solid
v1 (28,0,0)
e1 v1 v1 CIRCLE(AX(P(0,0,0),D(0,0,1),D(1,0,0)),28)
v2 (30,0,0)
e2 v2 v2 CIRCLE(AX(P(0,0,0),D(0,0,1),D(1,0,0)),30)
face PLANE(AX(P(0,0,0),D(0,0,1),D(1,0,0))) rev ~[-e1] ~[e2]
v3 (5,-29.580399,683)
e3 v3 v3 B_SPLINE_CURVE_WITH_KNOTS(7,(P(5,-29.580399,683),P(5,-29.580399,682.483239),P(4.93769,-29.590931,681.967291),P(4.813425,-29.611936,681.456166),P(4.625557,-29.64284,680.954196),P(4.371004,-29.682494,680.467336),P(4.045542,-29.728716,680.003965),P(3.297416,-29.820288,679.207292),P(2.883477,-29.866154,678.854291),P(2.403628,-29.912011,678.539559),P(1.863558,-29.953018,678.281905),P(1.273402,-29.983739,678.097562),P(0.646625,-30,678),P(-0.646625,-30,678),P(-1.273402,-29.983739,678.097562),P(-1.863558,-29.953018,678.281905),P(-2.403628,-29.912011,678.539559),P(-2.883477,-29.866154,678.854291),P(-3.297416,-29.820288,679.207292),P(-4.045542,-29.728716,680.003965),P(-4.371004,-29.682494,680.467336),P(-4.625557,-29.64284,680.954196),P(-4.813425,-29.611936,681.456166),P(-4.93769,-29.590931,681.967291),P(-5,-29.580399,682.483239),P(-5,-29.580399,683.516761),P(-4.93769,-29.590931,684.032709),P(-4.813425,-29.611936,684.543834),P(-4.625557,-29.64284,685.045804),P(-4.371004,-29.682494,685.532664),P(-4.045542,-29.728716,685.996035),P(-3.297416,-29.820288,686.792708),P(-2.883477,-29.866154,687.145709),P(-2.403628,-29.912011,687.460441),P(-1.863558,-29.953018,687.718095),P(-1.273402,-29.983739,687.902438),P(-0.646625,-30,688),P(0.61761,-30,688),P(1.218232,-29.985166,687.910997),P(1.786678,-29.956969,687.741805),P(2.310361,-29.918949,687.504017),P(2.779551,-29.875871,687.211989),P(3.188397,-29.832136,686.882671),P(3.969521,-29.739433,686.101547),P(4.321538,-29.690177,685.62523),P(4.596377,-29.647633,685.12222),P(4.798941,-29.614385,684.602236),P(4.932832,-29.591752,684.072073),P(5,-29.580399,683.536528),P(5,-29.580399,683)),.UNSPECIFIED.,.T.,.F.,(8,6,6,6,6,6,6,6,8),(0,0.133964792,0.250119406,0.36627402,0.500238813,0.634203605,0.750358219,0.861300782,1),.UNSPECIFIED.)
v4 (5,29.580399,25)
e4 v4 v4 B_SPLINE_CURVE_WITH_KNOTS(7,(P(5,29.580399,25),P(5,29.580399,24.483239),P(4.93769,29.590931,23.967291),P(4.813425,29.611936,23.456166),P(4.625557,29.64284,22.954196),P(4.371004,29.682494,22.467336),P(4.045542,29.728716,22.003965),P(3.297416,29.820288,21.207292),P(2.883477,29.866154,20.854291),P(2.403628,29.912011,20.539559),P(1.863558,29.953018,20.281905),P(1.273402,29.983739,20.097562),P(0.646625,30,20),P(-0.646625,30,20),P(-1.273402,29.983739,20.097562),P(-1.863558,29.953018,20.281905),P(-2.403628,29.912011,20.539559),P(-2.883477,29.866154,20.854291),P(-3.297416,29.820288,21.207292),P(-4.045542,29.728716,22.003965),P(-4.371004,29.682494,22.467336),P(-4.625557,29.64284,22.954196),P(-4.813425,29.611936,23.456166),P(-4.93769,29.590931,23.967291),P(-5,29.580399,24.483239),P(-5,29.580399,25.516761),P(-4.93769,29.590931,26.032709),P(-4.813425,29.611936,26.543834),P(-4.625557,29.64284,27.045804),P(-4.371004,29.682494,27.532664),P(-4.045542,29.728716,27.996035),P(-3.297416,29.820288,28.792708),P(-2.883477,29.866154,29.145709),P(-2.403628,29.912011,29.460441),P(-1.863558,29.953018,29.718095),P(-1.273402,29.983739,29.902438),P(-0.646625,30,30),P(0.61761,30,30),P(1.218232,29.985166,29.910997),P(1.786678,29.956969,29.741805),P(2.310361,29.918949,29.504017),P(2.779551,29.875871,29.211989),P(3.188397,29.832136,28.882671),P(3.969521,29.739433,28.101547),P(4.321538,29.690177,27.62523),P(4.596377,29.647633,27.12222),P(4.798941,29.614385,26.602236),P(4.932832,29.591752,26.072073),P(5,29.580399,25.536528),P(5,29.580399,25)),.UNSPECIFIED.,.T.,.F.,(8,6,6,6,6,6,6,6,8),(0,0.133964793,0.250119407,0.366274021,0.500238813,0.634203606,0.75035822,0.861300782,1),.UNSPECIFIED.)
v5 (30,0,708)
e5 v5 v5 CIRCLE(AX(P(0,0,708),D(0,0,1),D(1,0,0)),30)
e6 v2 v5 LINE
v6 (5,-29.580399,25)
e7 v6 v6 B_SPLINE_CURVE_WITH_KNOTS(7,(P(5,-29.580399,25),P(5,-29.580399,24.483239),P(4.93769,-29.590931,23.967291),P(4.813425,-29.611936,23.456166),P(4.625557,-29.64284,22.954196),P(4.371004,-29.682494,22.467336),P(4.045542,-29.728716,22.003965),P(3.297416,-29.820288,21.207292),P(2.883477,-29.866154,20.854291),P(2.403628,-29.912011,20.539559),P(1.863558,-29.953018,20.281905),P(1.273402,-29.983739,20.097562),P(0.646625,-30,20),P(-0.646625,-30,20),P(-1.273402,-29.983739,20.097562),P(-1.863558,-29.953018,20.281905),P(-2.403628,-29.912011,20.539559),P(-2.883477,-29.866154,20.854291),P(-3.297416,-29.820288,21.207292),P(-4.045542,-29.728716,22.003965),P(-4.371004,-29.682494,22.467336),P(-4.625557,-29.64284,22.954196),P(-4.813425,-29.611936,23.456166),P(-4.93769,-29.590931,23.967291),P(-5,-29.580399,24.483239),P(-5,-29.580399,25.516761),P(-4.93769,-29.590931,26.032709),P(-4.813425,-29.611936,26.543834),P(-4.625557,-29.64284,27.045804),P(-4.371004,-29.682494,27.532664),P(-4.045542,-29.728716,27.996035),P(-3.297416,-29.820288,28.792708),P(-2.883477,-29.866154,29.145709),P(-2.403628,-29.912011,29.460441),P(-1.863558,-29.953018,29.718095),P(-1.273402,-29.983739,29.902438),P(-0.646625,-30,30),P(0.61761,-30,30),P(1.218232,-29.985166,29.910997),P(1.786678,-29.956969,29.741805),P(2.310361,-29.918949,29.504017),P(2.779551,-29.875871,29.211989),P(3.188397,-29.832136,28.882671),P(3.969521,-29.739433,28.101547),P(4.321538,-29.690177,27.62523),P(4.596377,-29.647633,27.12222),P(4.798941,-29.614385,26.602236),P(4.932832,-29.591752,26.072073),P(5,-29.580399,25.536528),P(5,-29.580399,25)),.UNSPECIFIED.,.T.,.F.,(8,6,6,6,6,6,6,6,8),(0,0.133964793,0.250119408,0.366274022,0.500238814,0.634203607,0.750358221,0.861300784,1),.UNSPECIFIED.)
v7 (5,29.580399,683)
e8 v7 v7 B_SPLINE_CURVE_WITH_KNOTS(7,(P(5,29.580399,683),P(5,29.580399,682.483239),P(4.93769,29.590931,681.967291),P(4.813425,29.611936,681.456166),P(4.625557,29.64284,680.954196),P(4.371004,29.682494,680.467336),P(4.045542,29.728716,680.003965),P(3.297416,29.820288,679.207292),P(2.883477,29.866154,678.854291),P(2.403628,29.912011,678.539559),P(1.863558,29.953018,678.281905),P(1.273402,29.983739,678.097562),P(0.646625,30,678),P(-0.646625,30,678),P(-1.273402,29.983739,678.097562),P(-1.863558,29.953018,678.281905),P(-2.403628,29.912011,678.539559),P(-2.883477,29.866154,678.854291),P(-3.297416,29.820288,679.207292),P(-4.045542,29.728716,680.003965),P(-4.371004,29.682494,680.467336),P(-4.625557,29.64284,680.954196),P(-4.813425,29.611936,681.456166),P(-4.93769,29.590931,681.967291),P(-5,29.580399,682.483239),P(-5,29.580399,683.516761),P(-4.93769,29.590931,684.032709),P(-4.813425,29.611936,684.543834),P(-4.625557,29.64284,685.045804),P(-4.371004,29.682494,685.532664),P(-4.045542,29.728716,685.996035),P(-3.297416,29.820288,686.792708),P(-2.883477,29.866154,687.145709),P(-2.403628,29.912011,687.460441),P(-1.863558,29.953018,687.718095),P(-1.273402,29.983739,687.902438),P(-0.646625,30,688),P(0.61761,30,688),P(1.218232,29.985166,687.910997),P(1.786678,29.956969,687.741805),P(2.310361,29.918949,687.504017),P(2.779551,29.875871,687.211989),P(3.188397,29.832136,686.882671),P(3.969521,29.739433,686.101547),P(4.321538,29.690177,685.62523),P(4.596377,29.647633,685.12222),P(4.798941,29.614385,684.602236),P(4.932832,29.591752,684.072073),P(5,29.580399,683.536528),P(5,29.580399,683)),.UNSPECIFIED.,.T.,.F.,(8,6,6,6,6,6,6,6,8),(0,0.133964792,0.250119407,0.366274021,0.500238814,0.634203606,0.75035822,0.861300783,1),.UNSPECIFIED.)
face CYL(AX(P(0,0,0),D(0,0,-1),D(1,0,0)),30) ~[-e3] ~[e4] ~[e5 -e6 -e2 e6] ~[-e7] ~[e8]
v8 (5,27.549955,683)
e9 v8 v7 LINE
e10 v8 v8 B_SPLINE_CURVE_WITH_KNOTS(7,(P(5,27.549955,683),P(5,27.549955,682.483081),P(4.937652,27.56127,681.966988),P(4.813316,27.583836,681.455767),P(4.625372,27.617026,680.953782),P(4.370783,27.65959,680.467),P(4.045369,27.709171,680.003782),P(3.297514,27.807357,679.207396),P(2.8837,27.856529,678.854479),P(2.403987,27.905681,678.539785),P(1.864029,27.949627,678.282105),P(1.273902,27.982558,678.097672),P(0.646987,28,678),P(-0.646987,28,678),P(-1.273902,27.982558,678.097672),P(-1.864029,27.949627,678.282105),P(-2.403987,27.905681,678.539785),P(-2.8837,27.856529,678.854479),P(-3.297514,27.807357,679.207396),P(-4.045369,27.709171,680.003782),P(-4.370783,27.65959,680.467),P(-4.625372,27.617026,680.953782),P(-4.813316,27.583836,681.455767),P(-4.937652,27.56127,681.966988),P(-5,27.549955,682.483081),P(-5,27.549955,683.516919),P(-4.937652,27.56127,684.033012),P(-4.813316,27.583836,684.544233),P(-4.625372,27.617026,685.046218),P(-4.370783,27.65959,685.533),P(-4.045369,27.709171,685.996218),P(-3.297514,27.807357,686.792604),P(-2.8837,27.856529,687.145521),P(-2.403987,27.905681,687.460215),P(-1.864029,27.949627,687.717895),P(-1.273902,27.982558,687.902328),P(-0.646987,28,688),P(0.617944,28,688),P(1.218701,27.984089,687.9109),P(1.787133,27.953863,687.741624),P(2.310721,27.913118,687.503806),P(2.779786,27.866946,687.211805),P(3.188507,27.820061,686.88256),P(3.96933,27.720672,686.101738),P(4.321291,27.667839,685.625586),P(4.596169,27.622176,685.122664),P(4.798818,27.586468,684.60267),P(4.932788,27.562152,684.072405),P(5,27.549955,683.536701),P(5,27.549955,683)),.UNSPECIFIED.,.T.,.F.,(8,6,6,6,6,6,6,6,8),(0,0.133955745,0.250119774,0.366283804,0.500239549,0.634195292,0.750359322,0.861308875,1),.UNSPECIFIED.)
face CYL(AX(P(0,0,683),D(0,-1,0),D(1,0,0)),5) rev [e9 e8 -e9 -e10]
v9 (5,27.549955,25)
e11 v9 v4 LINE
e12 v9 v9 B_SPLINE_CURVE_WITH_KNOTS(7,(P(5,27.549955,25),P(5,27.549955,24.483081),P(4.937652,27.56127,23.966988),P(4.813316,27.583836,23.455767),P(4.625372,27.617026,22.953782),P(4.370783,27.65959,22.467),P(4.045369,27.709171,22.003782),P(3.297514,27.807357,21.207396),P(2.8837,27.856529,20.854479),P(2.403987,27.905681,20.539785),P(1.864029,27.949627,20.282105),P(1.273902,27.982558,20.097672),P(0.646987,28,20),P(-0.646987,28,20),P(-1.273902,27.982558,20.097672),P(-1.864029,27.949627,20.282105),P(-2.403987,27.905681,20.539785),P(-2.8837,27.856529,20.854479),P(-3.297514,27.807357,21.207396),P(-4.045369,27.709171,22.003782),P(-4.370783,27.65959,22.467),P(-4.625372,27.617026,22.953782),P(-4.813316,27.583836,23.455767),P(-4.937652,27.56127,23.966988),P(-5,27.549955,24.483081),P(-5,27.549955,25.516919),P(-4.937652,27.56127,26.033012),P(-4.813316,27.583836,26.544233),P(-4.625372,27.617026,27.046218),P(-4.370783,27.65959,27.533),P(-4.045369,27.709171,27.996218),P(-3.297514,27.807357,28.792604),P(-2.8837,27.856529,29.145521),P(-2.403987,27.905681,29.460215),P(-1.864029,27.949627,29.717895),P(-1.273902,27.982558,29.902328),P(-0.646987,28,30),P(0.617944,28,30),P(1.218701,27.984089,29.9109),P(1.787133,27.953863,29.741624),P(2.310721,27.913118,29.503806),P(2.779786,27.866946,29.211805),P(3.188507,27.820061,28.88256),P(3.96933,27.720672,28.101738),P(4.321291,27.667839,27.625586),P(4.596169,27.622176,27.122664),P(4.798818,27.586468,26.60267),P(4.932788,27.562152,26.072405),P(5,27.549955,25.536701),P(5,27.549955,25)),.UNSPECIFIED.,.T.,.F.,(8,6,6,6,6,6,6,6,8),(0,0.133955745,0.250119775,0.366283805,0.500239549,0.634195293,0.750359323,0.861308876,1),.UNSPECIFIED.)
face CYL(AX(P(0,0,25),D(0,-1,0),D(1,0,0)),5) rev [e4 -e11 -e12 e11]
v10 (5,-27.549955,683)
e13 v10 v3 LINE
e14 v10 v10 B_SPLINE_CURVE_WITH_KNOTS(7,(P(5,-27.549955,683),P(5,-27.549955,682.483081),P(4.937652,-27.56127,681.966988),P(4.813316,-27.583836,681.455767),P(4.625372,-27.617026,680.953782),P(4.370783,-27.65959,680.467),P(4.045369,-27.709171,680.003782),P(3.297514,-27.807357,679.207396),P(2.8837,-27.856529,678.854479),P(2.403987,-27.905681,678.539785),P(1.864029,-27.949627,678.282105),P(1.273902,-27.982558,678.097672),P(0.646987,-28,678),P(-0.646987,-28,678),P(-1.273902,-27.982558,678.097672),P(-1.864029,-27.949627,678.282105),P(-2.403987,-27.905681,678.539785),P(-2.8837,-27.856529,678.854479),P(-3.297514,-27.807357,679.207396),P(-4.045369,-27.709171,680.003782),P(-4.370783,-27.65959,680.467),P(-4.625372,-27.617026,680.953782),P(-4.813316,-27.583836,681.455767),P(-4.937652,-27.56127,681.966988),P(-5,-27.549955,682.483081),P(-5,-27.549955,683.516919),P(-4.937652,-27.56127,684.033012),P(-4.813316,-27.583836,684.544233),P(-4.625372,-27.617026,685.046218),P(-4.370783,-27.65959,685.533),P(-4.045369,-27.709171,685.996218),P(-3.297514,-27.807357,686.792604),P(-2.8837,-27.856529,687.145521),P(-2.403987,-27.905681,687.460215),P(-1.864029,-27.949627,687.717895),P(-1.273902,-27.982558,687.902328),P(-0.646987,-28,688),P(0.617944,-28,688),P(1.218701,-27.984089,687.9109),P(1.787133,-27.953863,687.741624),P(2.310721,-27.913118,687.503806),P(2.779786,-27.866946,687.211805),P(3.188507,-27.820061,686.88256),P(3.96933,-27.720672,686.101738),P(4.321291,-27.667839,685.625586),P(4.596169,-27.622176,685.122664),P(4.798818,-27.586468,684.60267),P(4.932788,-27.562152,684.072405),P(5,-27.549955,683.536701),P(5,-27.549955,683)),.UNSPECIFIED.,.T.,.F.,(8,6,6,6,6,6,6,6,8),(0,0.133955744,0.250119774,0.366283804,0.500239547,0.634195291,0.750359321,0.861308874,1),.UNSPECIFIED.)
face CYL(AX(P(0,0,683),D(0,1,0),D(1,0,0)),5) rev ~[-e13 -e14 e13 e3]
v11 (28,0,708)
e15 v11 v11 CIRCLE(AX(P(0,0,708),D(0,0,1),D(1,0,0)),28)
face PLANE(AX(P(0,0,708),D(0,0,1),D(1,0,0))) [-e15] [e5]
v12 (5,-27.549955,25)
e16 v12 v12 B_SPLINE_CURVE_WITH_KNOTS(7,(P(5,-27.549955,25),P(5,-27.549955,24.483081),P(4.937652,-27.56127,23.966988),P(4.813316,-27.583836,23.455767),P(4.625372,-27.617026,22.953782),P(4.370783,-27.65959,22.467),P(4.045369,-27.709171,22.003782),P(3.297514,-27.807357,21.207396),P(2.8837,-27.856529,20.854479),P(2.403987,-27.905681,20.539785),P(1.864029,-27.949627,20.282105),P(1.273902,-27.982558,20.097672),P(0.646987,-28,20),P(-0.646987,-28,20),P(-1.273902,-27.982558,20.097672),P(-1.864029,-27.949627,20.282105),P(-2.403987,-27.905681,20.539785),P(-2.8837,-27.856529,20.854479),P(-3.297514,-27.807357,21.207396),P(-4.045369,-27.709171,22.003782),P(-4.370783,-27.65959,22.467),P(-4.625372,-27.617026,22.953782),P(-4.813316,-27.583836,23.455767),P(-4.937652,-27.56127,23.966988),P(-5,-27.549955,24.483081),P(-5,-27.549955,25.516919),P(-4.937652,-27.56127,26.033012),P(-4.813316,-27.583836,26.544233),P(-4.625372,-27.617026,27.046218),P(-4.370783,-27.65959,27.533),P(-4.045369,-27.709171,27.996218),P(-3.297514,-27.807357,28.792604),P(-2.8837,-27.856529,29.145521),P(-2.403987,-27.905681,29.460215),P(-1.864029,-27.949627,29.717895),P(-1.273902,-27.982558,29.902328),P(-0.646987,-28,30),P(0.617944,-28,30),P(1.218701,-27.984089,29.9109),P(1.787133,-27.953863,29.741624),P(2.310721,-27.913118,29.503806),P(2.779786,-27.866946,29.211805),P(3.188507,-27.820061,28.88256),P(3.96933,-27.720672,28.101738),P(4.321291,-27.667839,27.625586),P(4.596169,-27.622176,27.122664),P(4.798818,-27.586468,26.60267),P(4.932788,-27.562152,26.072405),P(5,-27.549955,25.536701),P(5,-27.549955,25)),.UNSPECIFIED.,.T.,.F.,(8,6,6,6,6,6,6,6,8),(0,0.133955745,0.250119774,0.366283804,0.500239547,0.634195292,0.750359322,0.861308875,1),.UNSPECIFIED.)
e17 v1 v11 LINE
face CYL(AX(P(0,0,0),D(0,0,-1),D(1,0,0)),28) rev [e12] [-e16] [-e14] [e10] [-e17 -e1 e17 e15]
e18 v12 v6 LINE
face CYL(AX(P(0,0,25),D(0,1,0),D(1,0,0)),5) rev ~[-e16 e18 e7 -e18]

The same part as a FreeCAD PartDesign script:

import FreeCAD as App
import Part
import Sketcher
from FreeCAD import Vector
Q = App.Units.Quantity

doc = App.newDocument("Part")
body = doc.addObject("PartDesign::Body", "Body")

sketch1 = body.newObject("Sketcher::SketchObject", "Sketch")
sketch1.AttachmentSupport = (doc.getObject("XY_Plane"), [""])
sketch1.MapMode = "FlatFace"
sketch1.addGeometry([
    Part.Circle(Vector(0, 0, 0), Vector(0, 0, 1), 30),
    Part.Circle(Vector(0, 0, 0), Vector(0, 0, 1), 28),
], False)
sketch1.addConstraint([
    Sketcher.Constraint("Coincident", 0, 3, -1, 1),
    Sketcher.Constraint("Coincident", 1, 3, -1, 1),
    Sketcher.Constraint("Diameter", 0, Q("60 mm")),
    Sketcher.Constraint("Diameter", 1, Q("56 mm")),
])
pad1 = body.newObject("PartDesign::Pad", "Pad")
pad1.Profile = sketch1
pad1.Length = 708

sketch2 = body.newObject("Sketcher::SketchObject", "Sketch001")
sketch2.AttachmentSupport = (doc.getObject("XZ_Plane"), [""])
sketch2.MapMode = "FlatFace"
sketch2.addGeometry([
    Part.Circle(Vector(0, 683, 0), Vector(0, 0, 1), 5),
    Part.Circle(Vector(0, 25, 0), Vector(0, 0, 1), 5),
], False)
sketch2.addConstraint([
    Sketcher.Constraint("Equal", 0, 1),
    Sketcher.Constraint("PointOnObject", 0, 3, -2),
    Sketcher.Constraint("PointOnObject", 1, 3, -2),
    Sketcher.Constraint("Diameter", 0, Q("10 mm")),
    Sketcher.Constraint("DistanceY", -1, 1, 0, 3, Q("683 mm")),
    Sketcher.Constraint("DistanceY", -1, 1, 1, 3, Q("25 mm")),
])
pocket1 = body.newObject("PartDesign::Pocket", "Pocket")
pocket1.Profile = sketch2
pocket1.Type = "ThroughAll"
pocket1.Midplane = True

doc.recompute()
